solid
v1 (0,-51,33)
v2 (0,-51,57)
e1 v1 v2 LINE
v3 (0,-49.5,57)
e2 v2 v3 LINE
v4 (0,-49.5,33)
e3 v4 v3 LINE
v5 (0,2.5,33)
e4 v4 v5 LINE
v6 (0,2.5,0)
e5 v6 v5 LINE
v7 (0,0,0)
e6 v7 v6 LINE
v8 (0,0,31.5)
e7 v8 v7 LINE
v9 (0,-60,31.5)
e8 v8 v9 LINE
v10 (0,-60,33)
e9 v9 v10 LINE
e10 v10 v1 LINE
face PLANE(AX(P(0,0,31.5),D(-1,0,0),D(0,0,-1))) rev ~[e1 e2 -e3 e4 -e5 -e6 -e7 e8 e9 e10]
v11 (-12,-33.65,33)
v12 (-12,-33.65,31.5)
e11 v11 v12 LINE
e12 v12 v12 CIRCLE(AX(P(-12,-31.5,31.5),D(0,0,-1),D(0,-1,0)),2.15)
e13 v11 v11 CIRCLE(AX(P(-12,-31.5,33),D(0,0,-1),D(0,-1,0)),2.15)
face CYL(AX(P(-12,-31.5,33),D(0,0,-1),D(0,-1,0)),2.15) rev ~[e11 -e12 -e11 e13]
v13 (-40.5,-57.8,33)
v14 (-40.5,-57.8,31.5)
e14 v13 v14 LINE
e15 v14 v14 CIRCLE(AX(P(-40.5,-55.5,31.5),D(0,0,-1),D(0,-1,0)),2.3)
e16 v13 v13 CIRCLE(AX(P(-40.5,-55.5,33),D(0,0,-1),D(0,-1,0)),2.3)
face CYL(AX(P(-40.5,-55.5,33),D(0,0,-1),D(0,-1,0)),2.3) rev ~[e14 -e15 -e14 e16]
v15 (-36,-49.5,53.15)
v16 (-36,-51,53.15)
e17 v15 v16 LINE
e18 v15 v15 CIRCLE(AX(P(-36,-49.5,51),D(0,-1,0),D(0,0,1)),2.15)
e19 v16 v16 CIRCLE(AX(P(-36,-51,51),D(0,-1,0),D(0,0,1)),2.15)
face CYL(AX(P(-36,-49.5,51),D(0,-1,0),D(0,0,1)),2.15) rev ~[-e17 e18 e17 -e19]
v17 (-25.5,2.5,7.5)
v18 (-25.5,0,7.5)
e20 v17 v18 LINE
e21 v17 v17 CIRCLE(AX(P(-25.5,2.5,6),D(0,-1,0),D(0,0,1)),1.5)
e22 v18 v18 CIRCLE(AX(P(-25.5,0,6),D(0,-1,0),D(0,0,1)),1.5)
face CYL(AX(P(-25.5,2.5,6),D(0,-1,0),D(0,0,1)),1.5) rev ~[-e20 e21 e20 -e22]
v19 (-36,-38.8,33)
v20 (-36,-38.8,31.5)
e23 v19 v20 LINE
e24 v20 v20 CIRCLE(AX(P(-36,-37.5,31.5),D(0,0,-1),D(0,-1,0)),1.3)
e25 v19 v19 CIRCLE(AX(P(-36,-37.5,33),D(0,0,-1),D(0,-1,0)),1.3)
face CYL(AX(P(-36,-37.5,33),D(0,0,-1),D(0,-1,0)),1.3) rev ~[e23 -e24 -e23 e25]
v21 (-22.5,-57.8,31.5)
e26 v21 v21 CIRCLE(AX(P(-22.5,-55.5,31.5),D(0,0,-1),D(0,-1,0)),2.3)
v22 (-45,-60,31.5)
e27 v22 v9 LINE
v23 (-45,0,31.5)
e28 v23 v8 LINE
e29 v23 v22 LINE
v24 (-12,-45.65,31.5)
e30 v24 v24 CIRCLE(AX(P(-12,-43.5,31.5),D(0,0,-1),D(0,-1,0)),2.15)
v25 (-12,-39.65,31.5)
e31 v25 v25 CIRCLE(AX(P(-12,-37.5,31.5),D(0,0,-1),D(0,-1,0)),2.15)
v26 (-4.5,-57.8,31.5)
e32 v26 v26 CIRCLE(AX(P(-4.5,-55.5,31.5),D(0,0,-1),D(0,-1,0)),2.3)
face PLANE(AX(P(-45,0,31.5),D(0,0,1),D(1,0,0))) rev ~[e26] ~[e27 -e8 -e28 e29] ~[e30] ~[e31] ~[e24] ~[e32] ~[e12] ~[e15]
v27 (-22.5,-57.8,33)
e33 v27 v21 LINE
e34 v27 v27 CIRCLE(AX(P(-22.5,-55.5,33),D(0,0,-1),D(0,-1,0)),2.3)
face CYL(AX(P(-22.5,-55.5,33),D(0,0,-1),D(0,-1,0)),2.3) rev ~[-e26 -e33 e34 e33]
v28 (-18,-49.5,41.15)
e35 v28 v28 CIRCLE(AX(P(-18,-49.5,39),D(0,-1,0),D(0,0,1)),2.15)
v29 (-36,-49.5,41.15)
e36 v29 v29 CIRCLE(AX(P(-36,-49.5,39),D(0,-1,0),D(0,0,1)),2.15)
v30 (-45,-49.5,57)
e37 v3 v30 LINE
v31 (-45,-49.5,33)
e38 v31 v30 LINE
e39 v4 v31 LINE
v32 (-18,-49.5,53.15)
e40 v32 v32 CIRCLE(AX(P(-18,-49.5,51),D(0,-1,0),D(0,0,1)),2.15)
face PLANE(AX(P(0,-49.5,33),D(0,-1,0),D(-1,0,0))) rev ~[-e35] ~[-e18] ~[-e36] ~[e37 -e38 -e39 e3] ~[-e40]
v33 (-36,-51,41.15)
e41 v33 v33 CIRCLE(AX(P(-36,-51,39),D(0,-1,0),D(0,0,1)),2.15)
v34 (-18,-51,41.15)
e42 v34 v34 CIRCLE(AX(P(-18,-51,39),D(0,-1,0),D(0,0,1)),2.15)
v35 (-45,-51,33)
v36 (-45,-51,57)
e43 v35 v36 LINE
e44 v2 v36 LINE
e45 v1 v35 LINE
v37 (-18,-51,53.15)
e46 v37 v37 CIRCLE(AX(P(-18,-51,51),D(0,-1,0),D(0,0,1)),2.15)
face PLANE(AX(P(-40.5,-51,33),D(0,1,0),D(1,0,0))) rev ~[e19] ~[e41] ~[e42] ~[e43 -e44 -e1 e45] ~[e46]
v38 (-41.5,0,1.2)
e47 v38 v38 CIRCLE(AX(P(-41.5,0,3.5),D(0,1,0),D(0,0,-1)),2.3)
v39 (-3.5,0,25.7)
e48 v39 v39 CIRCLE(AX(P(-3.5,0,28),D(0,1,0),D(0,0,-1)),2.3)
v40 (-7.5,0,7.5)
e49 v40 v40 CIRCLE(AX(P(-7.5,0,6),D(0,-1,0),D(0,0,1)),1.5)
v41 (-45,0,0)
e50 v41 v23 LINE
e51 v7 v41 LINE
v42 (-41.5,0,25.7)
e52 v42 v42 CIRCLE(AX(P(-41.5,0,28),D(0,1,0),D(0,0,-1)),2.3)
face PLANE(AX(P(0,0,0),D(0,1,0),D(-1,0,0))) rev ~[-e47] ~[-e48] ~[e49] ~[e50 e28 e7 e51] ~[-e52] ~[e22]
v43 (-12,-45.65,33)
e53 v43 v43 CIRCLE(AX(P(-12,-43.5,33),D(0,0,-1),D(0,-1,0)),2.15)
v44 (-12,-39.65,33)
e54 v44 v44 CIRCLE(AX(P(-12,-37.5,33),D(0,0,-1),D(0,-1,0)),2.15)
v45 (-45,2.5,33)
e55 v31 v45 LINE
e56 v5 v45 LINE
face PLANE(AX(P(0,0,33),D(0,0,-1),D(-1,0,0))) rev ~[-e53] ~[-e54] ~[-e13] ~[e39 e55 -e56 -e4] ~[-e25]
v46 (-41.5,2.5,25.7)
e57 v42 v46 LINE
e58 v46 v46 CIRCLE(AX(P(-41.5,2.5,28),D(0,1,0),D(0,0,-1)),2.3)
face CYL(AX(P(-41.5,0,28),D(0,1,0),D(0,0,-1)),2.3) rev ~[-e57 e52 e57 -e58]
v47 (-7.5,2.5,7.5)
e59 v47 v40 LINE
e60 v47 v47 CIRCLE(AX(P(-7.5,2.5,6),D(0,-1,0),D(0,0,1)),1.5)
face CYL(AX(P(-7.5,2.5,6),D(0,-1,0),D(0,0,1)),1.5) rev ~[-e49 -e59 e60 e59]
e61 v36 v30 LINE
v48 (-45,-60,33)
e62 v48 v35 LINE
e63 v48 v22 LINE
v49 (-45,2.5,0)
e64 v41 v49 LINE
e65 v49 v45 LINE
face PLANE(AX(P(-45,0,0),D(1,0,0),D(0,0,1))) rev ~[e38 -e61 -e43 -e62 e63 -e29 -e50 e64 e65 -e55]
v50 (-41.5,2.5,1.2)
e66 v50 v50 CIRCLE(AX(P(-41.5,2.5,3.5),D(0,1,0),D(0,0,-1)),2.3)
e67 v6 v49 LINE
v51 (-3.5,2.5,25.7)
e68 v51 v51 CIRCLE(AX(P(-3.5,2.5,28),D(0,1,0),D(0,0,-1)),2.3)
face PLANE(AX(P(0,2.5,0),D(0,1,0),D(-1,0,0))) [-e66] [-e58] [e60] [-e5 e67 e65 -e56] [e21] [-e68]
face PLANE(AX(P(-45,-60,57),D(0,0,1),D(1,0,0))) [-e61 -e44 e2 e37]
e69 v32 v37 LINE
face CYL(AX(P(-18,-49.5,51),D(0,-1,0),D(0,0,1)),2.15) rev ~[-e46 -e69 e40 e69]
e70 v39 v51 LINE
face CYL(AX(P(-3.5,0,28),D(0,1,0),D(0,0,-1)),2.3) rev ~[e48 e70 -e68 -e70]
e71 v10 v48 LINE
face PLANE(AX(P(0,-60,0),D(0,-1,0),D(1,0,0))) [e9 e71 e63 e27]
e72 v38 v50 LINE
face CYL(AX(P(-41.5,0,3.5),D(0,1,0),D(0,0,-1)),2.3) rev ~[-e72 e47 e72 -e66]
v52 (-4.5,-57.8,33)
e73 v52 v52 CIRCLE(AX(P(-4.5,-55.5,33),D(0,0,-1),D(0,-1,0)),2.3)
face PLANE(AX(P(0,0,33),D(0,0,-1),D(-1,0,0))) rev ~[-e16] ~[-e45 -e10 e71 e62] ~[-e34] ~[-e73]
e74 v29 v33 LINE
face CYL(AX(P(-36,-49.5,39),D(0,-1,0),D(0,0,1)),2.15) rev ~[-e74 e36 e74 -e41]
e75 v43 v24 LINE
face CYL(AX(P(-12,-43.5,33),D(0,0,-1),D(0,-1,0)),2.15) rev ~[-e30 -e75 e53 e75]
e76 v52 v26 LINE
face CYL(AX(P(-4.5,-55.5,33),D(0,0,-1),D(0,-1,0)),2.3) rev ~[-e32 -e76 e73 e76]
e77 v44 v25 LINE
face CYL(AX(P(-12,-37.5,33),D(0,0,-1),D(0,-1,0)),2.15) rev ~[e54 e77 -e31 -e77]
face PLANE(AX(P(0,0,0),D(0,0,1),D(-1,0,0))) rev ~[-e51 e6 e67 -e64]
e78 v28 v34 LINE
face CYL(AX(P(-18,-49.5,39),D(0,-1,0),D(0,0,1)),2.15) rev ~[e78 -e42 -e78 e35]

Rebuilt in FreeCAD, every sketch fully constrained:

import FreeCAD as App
import Part
import Sketcher
from FreeCAD import Vector


def add_polygon(sketch, points):
    """Adds a closed chain of lines whose ends are joined by coincident constraints."""
    first, n = sketch.GeometryCount, len(points)
    for a, b in zip(points, points[1:] + points[:1]):
        sketch.addGeometry(Part.LineSegment(App.Vector(*a, 0), App.Vector(*b, 0)), False)
    for i in range(n):
        sketch.addConstraint(Sketcher.Constraint("Coincident", first + i, 2, first + (i + 1) % n, 1))

doc = App.newDocument("Part")
body = doc.addObject("PartDesign::Body", "Body")

# Sketch on XZ plane
sketch1 = doc.addObject("Sketcher::SketchObject", "Sketch")
body.addObject(sketch1)
sketch1.AttachmentSupport = (doc.XZ_Plane, [""])
sketch1.MapMode = "FlatFace"
add_polygon(sketch1, [(0, 31.5), (0, 0), (-45, 0), (-45, 31.5)])  # lines 0-3
sketch1.addConstraint(Sketcher.Constraint("Vertical", 0))
sketch1.addConstraint(Sketcher.Constraint("Horizontal", 1))
sketch1.addConstraint(Sketcher.Constraint("Vertical", 2))
sketch1.addConstraint(Sketcher.Constraint("Horizontal", 3))
sketch1.addConstraint(Sketcher.Constraint("Coincident", 0, 2, -1, 1))
sketch1.addConstraint(Sketcher.Constraint("DistanceX", 1, 2, 1, 1, 45.0))
sketch1.addConstraint(Sketcher.Constraint("DistanceY", 0, 2, 0, 1, 31.5))
pad1 = doc.addObject("PartDesign::Pad", "Pad")
body.addObject(pad1)
pad1.Profile = sketch1
pad1.Length = 2.5
pad1.Reversed = True

# Sketch on XZ plane
sketch2 = doc.addObject("Sketcher::SketchObject", "Sketch001")
body.addObject(sketch2)
sketch2.AttachmentSupport = (doc.XZ_Plane, [""])
sketch2.MapMode = "FlatFace"
add_polygon(sketch2, [(-45, 33), (-45, 31.5), (0, 31.5), (0, 33)])  # lines 0-3
sketch2.addConstraint(Sketcher.Constraint("Vertical", 0))
sketch2.addConstraint(Sketcher.Constraint("Horizontal", 1))
sketch2.addConstraint(Sketcher.Constraint("Vertical", 2))
sketch2.addConstraint(Sketcher.Constraint("Horizontal", 3))
sketch2.addConstraint(Sketcher.Constraint("PointOnObject", 1, 2, -2))
sketch2.addConstraint(Sketcher.Constraint("DistanceX", 1, 1, 1, 2, 45.0))
sketch2.addConstraint(Sketcher.Constraint("DistanceY", 0, 2, 0, 1, 1.5))
sketch2.addConstraint(Sketcher.Constraint("DistanceY", -1, 1, 2, 2, 33.0))
pad2 = doc.addObject("PartDesign::Pad", "Pad001")
body.addObject(pad2)
pad2.Profile = sketch2
pad2.Type = "TwoLengths"
pad2.Length = 60
pad2.Length2 = 2.5

# Sketch on XZ plane
sketch3 = doc.addObject("Sketcher::SketchObject", "Sketch002")
body.addObject(sketch3)
sketch3.AttachmentSupport = (doc.XZ_Plane, [""])
sketch3.MapMode = "FlatFace"
sketch3.addGeometry(Part.Circle(Vector(-3.5, 28, 0), Vector(0, 0, 1), 2.3), False)
sketch3.addGeometry(Part.Circle(Vector(-41.5, 28, 0), Vector(0, 0, 1), 2.3), False)
sketch3.addGeometry(Part.Circle(Vector(-41.5, 3.5, 0), Vector(0, 0, 1), 2.3), False)
sketch3.addConstraint(Sketcher.Constraint("Equal", 0, 1))
sketch3.addConstraint(Sketcher.Constraint("Equal", 1, 2))
sketch3.addConstraint(Sketcher.Constraint("Horizontal", 0, 3, 1, 3))
sketch3.addConstraint(Sketcher.Constraint("Vertical", 1, 3, 2, 3))
sketch3.addConstraint(Sketcher.Constraint("Diameter", 0, 4.6))
sketch3.addConstraint(Sketcher.Constraint("DistanceY", -1, 1, 0, 3, 28.0))
sketch3.addConstraint(Sketcher.Constraint("DistanceX", 1, 3, 0, 3, 38.0))
sketch3.addConstraint(Sketcher.Constraint("DistanceX", 0, 3, -1, 1, 3.5))
sketch3.addConstraint(Sketcher.Constraint("DistanceY", -1, 1, 2, 3, 3.5))
doc.recompute()
hole = doc.addObject("PartDesign::Hole", "Hole")
body.addObject(hole)
hole.Profile = sketch3
hole.ThreadType = "None"
hole.Diameter = 4.6
hole.DepthType = "ThroughAll"

# Sketch on XY plane
sketch4 = doc.addObject("Sketcher::SketchObject", "Sketch003")
body.addObject(sketch4)
sketch4.AttachmentSupport = (doc.XY_Plane, [""])
sketch4.MapMode = "FlatFace"
sketch4.AttachmentOffset = App.Placement(Vector(0, 0, 33), App.Rotation())
sketch4.addGeometry(Part.Circle(Vector(-40.5, -55.5, 0), Vector(0, 0, 1), 2.3), False)
sketch4.addGeometry(Part.Circle(Vector(-4.5, -55.5, 0), Vector(0, 0, 1), 2.3), False)
sketch4.addGeometry(Part.Circle(Vector(-22.5, -55.5, 0), Vector(0, 0, 1), 2.3), False)
sketch4.addConstraint(Sketcher.Constraint("Equal", 0, 1))
sketch4.addConstraint(Sketcher.Constraint("Equal", 1, 2))
sketch4.addConstraint(Sketcher.Constraint("Horizontal", 0, 3, 1, 3))
sketch4.addConstraint(Sketcher.Constraint("Horizontal", 1, 3, 2, 3))
sketch4.addConstraint(Sketcher.Constraint("Diameter", 0, 4.6))
sketch4.addConstraint(Sketcher.Constraint("DistanceX", 0, 3, 1, 3, 36.0))
sketch4.addConstraint(Sketcher.Constraint("DistanceX", 0, 3, 2, 3, 18.0))
sketch4.addConstraint(Sketcher.Constraint("DistanceX", 0, 3, -1, 1, 40.5))
sketch4.addConstraint(Sketcher.Constraint("DistanceY", 0, 3, -1, 1, 55.5))
doc.recompute()
hole2 = doc.addObject("PartDesign::Hole", "Hole001")
body.addObject(hole2)
hole2.Profile = sketch4
hole2.ThreadType = "None"
hole2.Diameter = 4.6
hole2.DepthType = "ThroughAll"

# Sketch on XY plane
sketch5 = doc.addObject("Sketcher::SketchObject", "Sketch004")
body.addObject(sketch5)
sketch5.AttachmentSupport = (doc.XY_Plane, [""])
sketch5.MapMode = "FlatFace"
sketch5.AttachmentOffset = App.Placement(Vector(0, 0, 33), App.Rotation())
add_polygon(sketch5, [(-45, -51), (0, -51), (0, -49.5), (-45, -49.5)])  # lines 0-3
sketch5.addConstraint(Sketcher.Constraint("Horizontal", 0))
sketch5.addConstraint(Sketcher.Constraint("Vertical", 1))
sketch5.addConstraint(Sketcher.Constraint("Horizontal", 2))
sketch5.addConstraint(Sketcher.Constraint("Vertical", 3))
sketch5.addConstraint(Sketcher.Constraint("PointOnObject", 0, 2, -2))
sketch5.addConstraint(Sketcher.Constraint("DistanceY", 1, 1, 1, 2, 1.5))
sketch5.addConstraint(Sketcher.Constraint("DistanceX", 0, 1, 0, 2, 45.0))
sketch5.addConstraint(Sketcher.Constraint("DistanceY", 0, 2, -1, 1, 51.0))
pad3 = doc.addObject("PartDesign::Pad", "Pad002")
body.addObject(pad3)
pad3.Profile = sketch5
pad3.Length = 24

# Sketch on XY plane
sketch6 = doc.addObject("Sketcher::SketchObject", "Sketch005")
body.addObject(sketch6)
sketch6.AttachmentSupport = (doc.XY_Plane, [""])
sketch6.MapMode = "FlatFace"
sketch6.AttachmentOffset = App.Placement(Vector(0, 0, 33), App.Rotation())
sketch6.addGeometry(Part.Circle(Vector(-12, -31.5, 0), Vector(0, 0, 1), 2.15), False)
sketch6.addGeometry(Part.Circle(Vector(-12, -37.5, 0), Vector(0, 0, 1), 2.15), False)
sketch6.addGeometry(Part.Circle(Vector(-12, -43.5, 0), Vector(0, 0, 1), 2.15), False)
sketch6.addConstraint(Sketcher.Constraint("Equal", 0, 1))
sketch6.addConstraint(Sketcher.Constraint("Equal", 1, 2))
sketch6.addConstraint(Sketcher.Constraint("Vertical", 0, 3, 1, 3))
sketch6.addConstraint(Sketcher.Constraint("Vertical", 1, 3, 2, 3))
sketch6.addConstraint(Sketcher.Constraint("Diameter", 0, 4.3))
sketch6.addConstraint(Sketcher.Constraint("DistanceX", 0, 3, -1, 1, 12.0))
sketch6.addConstraint(Sketcher.Constraint("DistanceY", 1, 3, 0, 3, 6.0))
sketch6.addConstraint(Sketcher.Constraint("DistanceY", 2, 3, 1, 3, 6.0))
sketch6.addConstraint(Sketcher.Constraint("DistanceY", 0, 3, -1, 1, 31.5))
doc.recompute()
hole3 = doc.addObject("PartDesign::Hole", "Hole002")
body.addObject(hole3)
hole3.Profile = sketch6
hole3.ThreadType = "None"
hole3.Diameter = 4.3
hole3.DepthType = "ThroughAll"

# Sketch on XY plane
sketch7 = doc.addObject("Sketcher::SketchObject", "Sketch006")
body.addObject(sketch7)
sketch7.AttachmentSupport = (doc.XY_Plane, [""])
sketch7.MapMode = "FlatFace"
sketch7.AttachmentOffset = App.Placement(Vector(0, 0, 33), App.Rotation())
sketch7.addGeometry(Part.Circle(Vector(-12, -37.5, 0), Vector(0, 0, 1), 1.3), False)
sketch7.addGeometry(Part.Circle(Vector(-36, -37.5, 0), Vector(0, 0, 1), 1.3), False)
sketch7.addConstraint(Sketcher.Constraint("Equal", 0, 1))
sketch7.addConstraint(Sketcher.Constraint("Horizontal", 0, 3, 1, 3))
sketch7.addConstraint(Sketcher.Constraint("Diameter", 0, 2.6))
sketch7.addConstraint(Sketcher.Constraint("DistanceX", 0, 3, -1, 1, 12.0))
sketch7.addConstraint(Sketcher.Constraint("DistanceX", 1, 3, -1, 1, 36.0))
sketch7.addConstraint(Sketcher.Constraint("DistanceY", 0, 3, -1, 1, 37.5))
doc.recompute()
hole4 = doc.addObject("PartDesign::Hole", "Hole003")
body.addObject(hole4)
hole4.Profile = sketch7
hole4.ThreadType = "None"
hole4.Diameter = 2.6
hole4.DepthType = "ThroughAll"

# Sketch on XZ plane
sketch8 = doc.addObject("Sketcher::SketchObject", "Sketch007")
body.addObject(sketch8)
sketch8.AttachmentSupport = (doc.XZ_Plane, [""])
sketch8.MapMode = "FlatFace"
sketch8.AttachmentOffset = App.Placement(Vector(0, 0, 49.5), App.Rotation())
sketch8.addGeometry(Part.Circle(Vector(-36, 39, 0), Vector(0, 0, 1), 2.15), False)
sketch8.addGeometry(Part.Circle(Vector(-36, 51, 0), Vector(0, 0, 1), 2.15), False)
sketch8.addGeometry(Part.Circle(Vector(-18, 51, 0), Vector(0, 0, 1), 2.15), False)
sketch8.addGeometry(Part.Circle(Vector(-18, 39, 0), Vector(0, 0, 1), 2.15), False)
sketch8.addConstraint(Sketcher.Constraint("Equal", 0, 1))
sketch8.addConstraint(Sketcher.Constraint("Equal", 1, 2))
sketch8.addConstraint(Sketcher.Constraint("Equal", 2, 3))
sketch8.addConstraint(Sketcher.Constraint("Horizontal", 1, 3, 2, 3))
sketch8.addConstraint(Sketcher.Constraint("Horizontal", 0, 3, 3, 3))
sketch8.addConstraint(Sketcher.Constraint("Vertical", 0, 3, 1, 3))
sketch8.addConstraint(Sketcher.Constraint("Vertical", 2, 3, 3, 3))
sketch8.addConstraint(Sketcher.Constraint("Diameter", 0, 4.3))
sketch8.addConstraint(Sketcher.Constraint("DistanceX", 0, 3, -1, 1, 36.0))
sketch8.addConstraint(Sketcher.Constraint("DistanceY", -1, 1, 0, 3, 39.0))
sketch8.addConstraint(Sketcher.Constraint("DistanceY", -1, 1, 1, 3, 51.0))
sketch8.addConstraint(Sketcher.Constraint("DistanceX", 2, 3, -1, 1, 18.0))
doc.recompute()
hole5 = doc.addObject("PartDesign::Hole", "Hole004")
body.addObject(hole5)
hole5.Profile = sketch8
hole5.ThreadType = "None"
hole5.Diameter = 4.3
hole5.DepthType = "ThroughAll"
hole5.Reversed = True

# Sketch on XZ plane
sketch9 = doc.addObject("Sketcher::SketchObject", "Sketch008")
body.addObject(sketch9)
sketch9.AttachmentSupport = (doc.XZ_Plane, [""])
sketch9.MapMode = "FlatFace"
sketch9.AttachmentOffset = App.Placement(Vector(0, 0, -2.5), App.Rotation())
sketch9.addGeometry(Part.Circle(Vector(-25.5, 6, 0), Vector(0, 0, 1), 1.5), False)
sketch9.addGeometry(Part.Circle(Vector(-7.5, 6, 0), Vector(0, 0, 1), 1.5), False)
sketch9.addConstraint(Sketcher.Constraint("Equal", 0, 1))
sketch9.addConstraint(Sketcher.Constraint("Horizontal", 0, 3, 1, 3))
sketch9.addConstraint(Sketcher.Constraint("Diameter", 0, 3.0))
sketch9.addConstraint(Sketcher.Constraint("DistanceY", -1, 1, 0, 3, 6.0))
sketch9.addConstraint(Sketcher.Constraint("DistanceX", 0, 3, 1, 3, 18.0))
sketch9.addConstraint(Sketcher.Constraint("DistanceX", 0, 3, -1, 1, 25.5))
doc.recompute()
hole6 = doc.addObject("PartDesign::Hole", "Hole005")
body.addObject(hole6)
hole6.Profile = sketch9
hole6.ThreadType = "None"
hole6.Diameter = 3
hole6.DepthType = "ThroughAll"
hole6.Reversed = True

doc.recompute()
